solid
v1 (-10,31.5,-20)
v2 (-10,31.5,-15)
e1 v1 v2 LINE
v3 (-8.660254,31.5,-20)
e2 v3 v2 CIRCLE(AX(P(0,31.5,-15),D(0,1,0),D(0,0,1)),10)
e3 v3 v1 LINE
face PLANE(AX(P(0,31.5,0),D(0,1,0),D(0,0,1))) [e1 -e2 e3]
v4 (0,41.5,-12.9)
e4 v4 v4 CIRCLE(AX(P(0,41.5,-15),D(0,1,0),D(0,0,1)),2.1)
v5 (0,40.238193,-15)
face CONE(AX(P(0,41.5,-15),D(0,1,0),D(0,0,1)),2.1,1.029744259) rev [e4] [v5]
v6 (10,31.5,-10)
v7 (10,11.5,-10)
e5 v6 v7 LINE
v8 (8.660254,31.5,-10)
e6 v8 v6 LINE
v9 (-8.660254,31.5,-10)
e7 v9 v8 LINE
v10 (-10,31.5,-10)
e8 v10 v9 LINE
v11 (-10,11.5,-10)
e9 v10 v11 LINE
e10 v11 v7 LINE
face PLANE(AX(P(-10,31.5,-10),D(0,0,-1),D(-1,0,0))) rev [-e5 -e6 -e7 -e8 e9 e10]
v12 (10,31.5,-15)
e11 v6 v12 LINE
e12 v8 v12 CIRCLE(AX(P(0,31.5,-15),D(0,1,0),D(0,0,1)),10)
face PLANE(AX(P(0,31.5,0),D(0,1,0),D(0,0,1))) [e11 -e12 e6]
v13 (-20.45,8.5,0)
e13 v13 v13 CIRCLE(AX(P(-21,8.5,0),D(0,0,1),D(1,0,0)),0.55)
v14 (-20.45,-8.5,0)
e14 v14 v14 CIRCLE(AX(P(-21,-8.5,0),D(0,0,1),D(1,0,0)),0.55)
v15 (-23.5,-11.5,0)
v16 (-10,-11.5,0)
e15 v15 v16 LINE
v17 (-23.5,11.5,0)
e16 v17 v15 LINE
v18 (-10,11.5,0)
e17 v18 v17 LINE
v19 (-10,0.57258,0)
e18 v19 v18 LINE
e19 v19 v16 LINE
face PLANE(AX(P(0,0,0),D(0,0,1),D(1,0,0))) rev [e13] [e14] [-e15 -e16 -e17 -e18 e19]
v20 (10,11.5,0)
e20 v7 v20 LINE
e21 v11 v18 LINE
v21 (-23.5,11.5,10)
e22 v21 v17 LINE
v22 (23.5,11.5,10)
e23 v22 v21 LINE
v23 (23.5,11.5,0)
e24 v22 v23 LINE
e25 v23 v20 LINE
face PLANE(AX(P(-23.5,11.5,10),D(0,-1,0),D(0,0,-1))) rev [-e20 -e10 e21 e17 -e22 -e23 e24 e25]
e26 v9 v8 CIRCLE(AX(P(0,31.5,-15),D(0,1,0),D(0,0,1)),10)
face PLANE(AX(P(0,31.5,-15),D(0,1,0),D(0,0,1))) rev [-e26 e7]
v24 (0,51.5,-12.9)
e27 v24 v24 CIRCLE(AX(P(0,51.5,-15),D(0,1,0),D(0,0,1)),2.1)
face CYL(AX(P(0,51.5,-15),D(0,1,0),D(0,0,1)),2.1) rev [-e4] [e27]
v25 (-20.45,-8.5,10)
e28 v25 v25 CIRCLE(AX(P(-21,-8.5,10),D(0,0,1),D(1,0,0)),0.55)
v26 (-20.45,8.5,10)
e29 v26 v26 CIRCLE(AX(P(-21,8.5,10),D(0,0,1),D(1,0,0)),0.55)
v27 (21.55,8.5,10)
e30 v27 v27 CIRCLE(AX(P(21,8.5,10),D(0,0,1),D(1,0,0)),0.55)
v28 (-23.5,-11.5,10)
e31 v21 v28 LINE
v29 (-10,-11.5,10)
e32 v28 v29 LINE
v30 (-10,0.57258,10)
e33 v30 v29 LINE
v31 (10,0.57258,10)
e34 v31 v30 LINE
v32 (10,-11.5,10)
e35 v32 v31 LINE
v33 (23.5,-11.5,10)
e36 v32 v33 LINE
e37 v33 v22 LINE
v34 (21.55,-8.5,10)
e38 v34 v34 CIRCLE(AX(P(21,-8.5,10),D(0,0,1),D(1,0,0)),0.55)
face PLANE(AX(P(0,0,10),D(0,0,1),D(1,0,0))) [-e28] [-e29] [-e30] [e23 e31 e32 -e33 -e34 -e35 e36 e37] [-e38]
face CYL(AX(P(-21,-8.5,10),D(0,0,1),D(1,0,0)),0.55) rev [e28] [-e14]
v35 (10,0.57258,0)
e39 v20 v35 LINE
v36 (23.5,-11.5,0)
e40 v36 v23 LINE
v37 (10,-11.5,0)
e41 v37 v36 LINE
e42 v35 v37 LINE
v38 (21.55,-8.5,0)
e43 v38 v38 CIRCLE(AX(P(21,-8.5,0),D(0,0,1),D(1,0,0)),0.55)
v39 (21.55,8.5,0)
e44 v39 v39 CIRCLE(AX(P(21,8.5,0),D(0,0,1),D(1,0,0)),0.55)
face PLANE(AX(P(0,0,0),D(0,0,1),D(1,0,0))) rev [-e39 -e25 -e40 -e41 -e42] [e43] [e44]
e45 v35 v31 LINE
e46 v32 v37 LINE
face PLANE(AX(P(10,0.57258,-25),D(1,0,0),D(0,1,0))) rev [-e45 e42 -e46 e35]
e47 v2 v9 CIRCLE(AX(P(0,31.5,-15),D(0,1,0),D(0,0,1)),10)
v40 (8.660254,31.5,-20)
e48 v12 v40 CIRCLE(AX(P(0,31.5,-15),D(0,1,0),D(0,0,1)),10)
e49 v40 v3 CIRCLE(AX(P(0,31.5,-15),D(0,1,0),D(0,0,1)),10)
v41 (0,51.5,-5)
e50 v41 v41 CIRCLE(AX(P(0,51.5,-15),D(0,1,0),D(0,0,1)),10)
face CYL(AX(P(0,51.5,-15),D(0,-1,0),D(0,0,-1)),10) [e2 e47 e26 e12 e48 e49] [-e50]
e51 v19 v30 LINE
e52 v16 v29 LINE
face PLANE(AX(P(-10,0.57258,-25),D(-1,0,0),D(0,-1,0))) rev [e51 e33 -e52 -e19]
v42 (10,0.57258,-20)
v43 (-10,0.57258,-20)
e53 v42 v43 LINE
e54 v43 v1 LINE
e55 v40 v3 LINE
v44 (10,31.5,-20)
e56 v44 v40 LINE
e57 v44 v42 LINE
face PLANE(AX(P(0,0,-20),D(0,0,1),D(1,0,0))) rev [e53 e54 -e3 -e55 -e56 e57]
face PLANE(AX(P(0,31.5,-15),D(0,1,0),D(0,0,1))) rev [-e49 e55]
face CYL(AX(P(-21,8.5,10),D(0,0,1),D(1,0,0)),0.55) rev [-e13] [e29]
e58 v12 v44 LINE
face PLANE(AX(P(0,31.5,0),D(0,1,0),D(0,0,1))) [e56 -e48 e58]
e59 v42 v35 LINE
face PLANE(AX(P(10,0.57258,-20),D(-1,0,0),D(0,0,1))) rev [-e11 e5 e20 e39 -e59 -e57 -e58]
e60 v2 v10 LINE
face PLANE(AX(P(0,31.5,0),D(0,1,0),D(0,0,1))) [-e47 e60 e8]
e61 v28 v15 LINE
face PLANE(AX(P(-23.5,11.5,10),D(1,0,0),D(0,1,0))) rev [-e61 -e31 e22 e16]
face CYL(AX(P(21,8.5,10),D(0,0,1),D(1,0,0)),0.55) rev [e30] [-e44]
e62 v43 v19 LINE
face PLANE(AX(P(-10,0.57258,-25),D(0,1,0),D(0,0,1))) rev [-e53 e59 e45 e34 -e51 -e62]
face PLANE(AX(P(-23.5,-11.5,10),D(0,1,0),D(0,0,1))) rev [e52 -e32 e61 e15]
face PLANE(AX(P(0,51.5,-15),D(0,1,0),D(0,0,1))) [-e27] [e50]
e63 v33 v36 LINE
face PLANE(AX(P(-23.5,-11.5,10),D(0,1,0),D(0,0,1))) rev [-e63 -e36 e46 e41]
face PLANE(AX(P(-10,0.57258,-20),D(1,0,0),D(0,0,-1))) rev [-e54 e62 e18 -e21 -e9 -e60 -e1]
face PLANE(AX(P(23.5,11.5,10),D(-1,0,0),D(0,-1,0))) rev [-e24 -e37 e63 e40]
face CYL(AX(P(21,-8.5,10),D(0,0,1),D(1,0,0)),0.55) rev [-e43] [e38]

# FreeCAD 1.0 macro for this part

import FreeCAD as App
import Part
import Sketcher
Q = App.Units.Quantity

doc = App.newDocument("Part")
body = doc.addObject("PartDesign::Body", "Body")

sketch1 = body.newObject("Sketcher::SketchObject", "Sketch")
sketch1.AttachmentSupport = (doc.getObject("XY_Plane"), [""])
sketch1.MapMode = "FlatFace"
sketch1.addGeometry(Part.LineSegment(App.Vector(-24, 12, 0), App.Vector(-24, -12, 0)), False)
sketch1.addGeometry(Part.LineSegment(App.Vector(-24, -12, 0), App.Vector(24, -12, 0)), False)
sketch1.addGeometry(Part.LineSegment(App.Vector(24, -12, 0), App.Vector(24, 12, 0)), False)
sketch1.addGeometry(Part.LineSegment(App.Vector(24, 12, 0), App.Vector(-24, 12, 0)), False)
sketch1.addConstraint(Sketcher.Constraint("Coincident", 0, 2, 1, 1))
sketch1.addConstraint(Sketcher.Constraint("Coincident", 1, 2, 2, 1))
sketch1.addConstraint(Sketcher.Constraint("Coincident", 2, 2, 3, 1))
sketch1.addConstraint(Sketcher.Constraint("Coincident", 3, 2, 0, 1))
sketch1.addConstraint(Sketcher.Constraint("Vertical", 0))
sketch1.addConstraint(Sketcher.Constraint("Horizontal", 1))
sketch1.addConstraint(Sketcher.Constraint("Vertical", 2))
sketch1.addConstraint(Sketcher.Constraint("Horizontal", 3))
sketch1.addConstraint(Sketcher.Constraint("Symmetric", 0, 2, 2, 2, -1, 1))
sketch1.addConstraint(Sketcher.Constraint("DistanceX", 1, 1, 1, 2, Q("47 mm")))
sketch1.addConstraint(Sketcher.Constraint("DistanceY", 0, 2, 0, 1, Q("23 mm")))
pad1 = body.newObject("PartDesign::Pad", "Pad")
pad1.Profile = sketch1
pad1.Length = 10

sketch2 = body.newObject("Sketcher::SketchObject", "Sketch001")
sketch2.AttachmentSupport = (doc.getObject("XY_Plane"), [""])
sketch2.MapMode = "FlatFace"
sketch2.AttachmentOffset = App.Placement(App.Vector(0, 0, 10), App.Rotation())
sketch2.addGeometry(Part.Circle(App.Vector(-21, 8.5, 0), App.Vector(0, 0, 1), 0.6), False)
sketch2.addGeometry(Part.Circle(App.Vector(-21, -8.5, 0), App.Vector(0, 0, 1), 0.6), False)
sketch2.addGeometry(Part.Circle(App.Vector(21, -8.5, 0), App.Vector(0, 0, 1), 0.6), False)
sketch2.addGeometry(Part.Circle(App.Vector(21, 8.5, 0), App.Vector(0, 0, 1), 0.6), False)
sketch2.addConstraint(Sketcher.Constraint("Equal", 0, 1))
sketch2.addConstraint(Sketcher.Constraint("Equal", 1, 2))
sketch2.addConstraint(Sketcher.Constraint("Equal", 2, 3))
sketch2.addConstraint(Sketcher.Constraint("Symmetric", 0, 3, 2, 3, -1, 1))
sketch2.addConstraint(Sketcher.Constraint("Symmetric", 1, 3, 3, 3, -1, 1))
sketch2.addConstraint(Sketcher.Constraint("Symmetric", 1, 3, 2, 3, -2))
sketch2.addConstraint(Sketcher.Constraint("Diameter", 0, Q("1.1 mm")))
sketch2.addConstraint(Sketcher.Constraint("DistanceX", 0, 3, -1, 1, Q("21 mm")))
sketch2.addConstraint(Sketcher.Constraint("DistanceY", 1, 3, 0, 3, Q("17 mm")))
doc.recompute()
hole = body.newObject("PartDesign::Hole", "Hole")
hole.Profile = sketch2
hole.ThreadType = "None"
hole.Diameter = 1.1
hole.DepthType = "ThroughAll"

sketch3 = body.newObject("Sketcher::SketchObject", "Sketch002")
sketch3.AttachmentSupport = (doc.getObject("XY_Plane"), [""])
sketch3.MapMode = "FlatFace"
sketch3.AttachmentOffset = App.Placement(App.Vector(0, 0, 10), App.Rotation())
sketch3.addGeometry(Part.LineSegment(App.Vector(-10, 1, 0), App.Vector(-10, -14, 0)), False)
sketch3.addGeometry(Part.LineSegment(App.Vector(-10, -14, 0), App.Vector(10, -14, 0)), False)
sketch3.addGeometry(Part.LineSegment(App.Vector(10, -14, 0), App.Vector(10, 1, 0)), False)
sketch3.addGeometry(Part.LineSegment(App.Vector(10, 1, 0), App.Vector(-10, 1, 0)), False)
sketch3.addConstraint(Sketcher.Constraint("Coincident", 0, 2, 1, 1))
sketch3.addConstraint(Sketcher.Constraint("Coincident", 1, 2, 2, 1))
sketch3.addConstraint(Sketcher.Constraint("Coincident", 2, 2, 3, 1))
sketch3.addConstraint(Sketcher.Constraint("Coincident", 3, 2, 0, 1))
sketch3.addConstraint(Sketcher.Constraint("Vertical", 0))
sketch3.addConstraint(Sketcher.Constraint("Horizontal", 1))
sketch3.addConstraint(Sketcher.Constraint("Vertical", 2))
sketch3.addConstraint(Sketcher.Constraint("Horizontal", 3))
sketch3.addConstraint(Sketcher.Constraint("DistanceX", 1, 1, 1, 2, Q("20 mm")))
sketch3.addConstraint(Sketcher.Constraint("DistanceY", 0, 2, 0, 1, Q("15 mm")))
sketch3.addConstraint(Sketcher.Constraint("DistanceX", 0, 2, -1, 1, Q("10 mm")))
sketch3.addConstraint(Sketcher.Constraint("DistanceY", 0, 2, -1, 1, Q("14.42742 mm")))
pocket1 = body.newObject("PartDesign::Pocket", "Pocket")
pocket1.Profile = sketch3
pocket1.Length = 10

sketch4 = body.newObject("Sketcher::SketchObject", "Sketch003")
sketch4.AttachmentSupport = (doc.getObject("XY_Plane"), [""])
sketch4.MapMode = "FlatFace"
sketch4.addGeometry(Part.LineSegment(App.Vector(10, 12, 0), App.Vector(10, 1, 0)), False)
sketch4.addGeometry(Part.LineSegment(App.Vector(10, 1, 0), App.Vector(-10, 1, 0)), False)
sketch4.addGeometry(Part.LineSegment(App.Vector(-10, 1, 0), App.Vector(-10, 12, 0)), False)
sketch4.addGeometry(Part.LineSegment(App.Vector(-10, 12, 0), App.Vector(10, 12, 0)), False)
sketch4.addConstraint(Sketcher.Constraint("Coincident", 0, 2, 1, 1))
sketch4.addConstraint(Sketcher.Constraint("Coincident", 1, 2, 2, 1))
sketch4.addConstraint(Sketcher.Constraint("Coincident", 2, 2, 3, 1))
sketch4.addConstraint(Sketcher.Constraint("Coincident", 3, 2, 0, 1))
sketch4.addConstraint(Sketcher.Constraint("Vertical", 0))
sketch4.addConstraint(Sketcher.Constraint("Horizontal", 1))
sketch4.addConstraint(Sketcher.Constraint("Vertical", 2))
sketch4.addConstraint(Sketcher.Constraint("Horizontal", 3))
sketch4.addConstraint(Sketcher.Constraint("DistanceX", 1, 2, 1, 1, Q("20 mm")))
sketch4.addConstraint(Sketcher.Constraint("DistanceX", -1, 1, 0, 2, Q("10 mm")))
sketch4.addConstraint(Sketcher.Constraint("DistanceY", -1, 1, 2, 2, Q("11.5 mm")))
sketch4.addConstraint(Sketcher.Constraint("DistanceY", 0, 2, 0, 1, Q("10.92742 mm")))
pad2 = body.newObject("PartDesign::Pad", "Pad001")
pad2.Profile = sketch4
pad2.Length = 20
pad2.Reversed = True

sketch5 = body.newObject("Sketcher::SketchObject", "Sketch004")
sketch5.AttachmentSupport = (doc.getObject("XZ_Plane"), [""])
sketch5.MapMode = "FlatFace"
sketch5.AttachmentOffset = App.Placement(App.Vector(0, 0, -11.5), App.Rotation())
sketch5.addGeometry(Part.LineSegment(App.Vector(-10, -20, 0), App.Vector(-10, -10, 0)), False)
sketch5.addGeometry(Part.LineSegment(App.Vector(-10, -10, 0), App.Vector(10, -10, 0)), False)
sketch5.addGeometry(Part.LineSegment(App.Vector(10, -10, 0), App.Vector(10, -20, 0)), False)
sketch5.addGeometry(Part.LineSegment(App.Vector(10, -20, 0), App.Vector(-10, -20, 0)), False)
sketch5.addConstraint(Sketcher.Constraint("Coincident", 0, 2, 1, 1))
sketch5.addConstraint(Sketcher.Constraint("Coincident", 1, 2, 2, 1))
sketch5.addConstraint(Sketcher.Constraint("Coincident", 2, 2, 3, 1))
sketch5.addConstraint(Sketcher.Constraint("Coincident", 3, 2, 0, 1))
sketch5.addConstraint(Sketcher.Constraint("Vertical", 0))
sketch5.addConstraint(Sketcher.Constraint("Horizontal", 1))
sketch5.addConstraint(Sketcher.Constraint("Vertical", 2))
sketch5.addConstraint(Sketcher.Constraint("Horizontal", 3))
sketch5.addConstraint(Sketcher.Constraint("DistanceX", 1, 1, 1, 2, Q("20 mm")))
sketch5.addConstraint(Sketcher.Constraint("DistanceY", 0, 1, 0, 2, Q("10 mm")))
sketch5.addConstraint(Sketcher.Constraint("DistanceX", 0, 2, -1, 1, Q("10 mm")))
sketch5.addConstraint(Sketcher.Constraint("DistanceY", 0, 2, -1, 1, Q("10 mm")))
pad3 = body.newObject("PartDesign::Pad", "Pad002")
pad3.Profile = sketch5
pad3.Length = 20
pad3.Reversed = True

sketch6 = body.newObject("Sketcher::SketchObject", "Sketch005")
sketch6.AttachmentSupport = (doc.getObject("XZ_Plane"), [""])
sketch6.MapMode = "FlatFace"
sketch6.AttachmentOffset = App.Placement(App.Vector(0, 0, -31.5), App.Rotation())
sketch6.addGeometry(Part.Circle(App.Vector(0, -15, 0), App.Vector(0, 0, 1), 10), False)
sketch6.addConstraint(Sketcher.Constraint("PointOnObject", 0, 3, -2))
sketch6.addConstraint(Sketcher.Constraint("Diameter", 0, Q("20 mm")))
sketch6.addConstraint(Sketcher.Constraint("DistanceY", 0, 3, -1, 1, Q("15 mm")))
pad4 = body.newObject("PartDesign::Pad", "Pad003")
pad4.Profile = sketch6
pad4.Length = 20
pad4.Reversed = True

sketch7 = body.newObject("Sketcher::SketchObject", "Sketch006")
sketch7.AttachmentSupport = (doc.getObject("XZ_Plane"), [""])
sketch7.MapMode = "FlatFace"
sketch7.AttachmentOffset = App.Placement(App.Vector(0, 0, -51.5), App.Rotation())
sketch7.addGeometry(Part.Circle(App.Vector(0, -15, 0), App.Vector(0, 0, 1), 2.1), False)
sketch7.addConstraint(Sketcher.Constraint("PointOnObject", 0, 3, -2))
sketch7.addConstraint(Sketcher.Constraint("Diameter", 0, Q("4.2 mm")))
sketch7.addConstraint(Sketcher.Constraint("DistanceY", 0, 3, -1, 1, Q("15 mm")))
doc.recompute()
hole2 = body.newObject("PartDesign::Hole", "Hole001")
hole2.Profile = sketch7
hole2.ThreadType = "None"
hole2.Diameter = 4.2
hole2.DepthType = "Dimension"
hole2.Depth = 10
hole2.DrillPoint = "Angled"
hole2.DrillPointAngle = 118
hole2.Reversed = True

doc.recompute()
